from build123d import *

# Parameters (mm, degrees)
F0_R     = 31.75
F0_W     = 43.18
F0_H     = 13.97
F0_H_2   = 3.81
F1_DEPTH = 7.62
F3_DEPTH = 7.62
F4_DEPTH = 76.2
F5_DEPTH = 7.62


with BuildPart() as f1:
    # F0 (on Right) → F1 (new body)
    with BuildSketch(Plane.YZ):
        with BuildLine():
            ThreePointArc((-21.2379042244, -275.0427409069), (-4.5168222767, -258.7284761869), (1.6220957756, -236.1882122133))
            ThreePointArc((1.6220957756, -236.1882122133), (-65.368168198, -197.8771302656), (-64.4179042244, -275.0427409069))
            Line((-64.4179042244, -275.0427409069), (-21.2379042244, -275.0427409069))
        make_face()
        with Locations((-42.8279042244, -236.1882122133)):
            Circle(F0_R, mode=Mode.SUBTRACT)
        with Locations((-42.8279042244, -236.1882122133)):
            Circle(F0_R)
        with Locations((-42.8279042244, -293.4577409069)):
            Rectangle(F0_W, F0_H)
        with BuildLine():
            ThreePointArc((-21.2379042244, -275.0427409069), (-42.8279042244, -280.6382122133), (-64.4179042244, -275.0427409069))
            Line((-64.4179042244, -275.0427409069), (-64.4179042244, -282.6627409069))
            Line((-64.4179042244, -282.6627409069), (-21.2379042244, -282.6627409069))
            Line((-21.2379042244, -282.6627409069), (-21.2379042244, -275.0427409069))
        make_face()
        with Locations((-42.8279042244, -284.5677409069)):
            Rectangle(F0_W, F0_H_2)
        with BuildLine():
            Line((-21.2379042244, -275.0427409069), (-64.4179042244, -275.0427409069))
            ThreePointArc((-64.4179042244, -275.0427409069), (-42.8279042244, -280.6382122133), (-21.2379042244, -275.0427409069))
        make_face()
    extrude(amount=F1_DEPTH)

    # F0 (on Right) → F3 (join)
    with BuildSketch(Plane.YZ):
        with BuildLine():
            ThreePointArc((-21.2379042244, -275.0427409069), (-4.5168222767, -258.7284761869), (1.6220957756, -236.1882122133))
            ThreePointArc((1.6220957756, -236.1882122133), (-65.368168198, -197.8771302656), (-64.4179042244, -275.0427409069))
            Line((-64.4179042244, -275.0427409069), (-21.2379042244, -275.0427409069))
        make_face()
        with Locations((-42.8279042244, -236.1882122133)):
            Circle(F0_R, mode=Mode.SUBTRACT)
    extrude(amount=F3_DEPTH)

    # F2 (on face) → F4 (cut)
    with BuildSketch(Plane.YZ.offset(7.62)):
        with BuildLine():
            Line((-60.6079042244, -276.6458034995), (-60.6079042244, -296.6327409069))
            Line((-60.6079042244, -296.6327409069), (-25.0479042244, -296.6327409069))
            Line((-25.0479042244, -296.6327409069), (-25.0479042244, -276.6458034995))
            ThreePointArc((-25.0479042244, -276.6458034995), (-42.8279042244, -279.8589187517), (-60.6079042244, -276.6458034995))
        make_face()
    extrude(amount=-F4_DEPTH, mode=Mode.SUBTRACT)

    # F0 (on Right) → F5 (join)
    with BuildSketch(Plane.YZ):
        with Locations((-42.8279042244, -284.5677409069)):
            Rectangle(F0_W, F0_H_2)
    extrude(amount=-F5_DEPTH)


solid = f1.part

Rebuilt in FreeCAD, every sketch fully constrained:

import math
import FreeCAD as App
import Part
import Sketcher

V = App.Vector
Q = App.Units.Quantity

doc = App.newDocument("Part")
body = doc.addObject("PartDesign::Body", "Body")

# Sketch on YZ plane
sketch1 = body.newObject("Sketcher::SketchObject", "Sketch")
sketch1.AttachmentSupport = (doc.getObject("YZ_Plane"), [""])
sketch1.MapMode = "FlatFace"
sketch1.addGeometry(Part.ArcOfCircle(Part.Circle(V(-43, -236, 0), V(0, 0, 1), 44), math.radians(-61), math.radians(0)), False)
sketch1.addGeometry(Part.ArcOfCircle(Part.Circle(V(-43, -236, 0), V(0, 0, 1), 44), math.radians(0), math.radians(241)), False)
sketch1.addGeometry(Part.LineSegment(V(-64, -275, 0), V(-64, -300, 0)), False)
sketch1.addGeometry(Part.LineSegment(V(-64, -300, 0), V(-21, -300, 0)), False)
sketch1.addGeometry(Part.LineSegment(V(-21, -300, 0), V(-21, -275, 0)), False)
sketch1.addConstraint(Sketcher.Constraint("Tangent", 0, 2, 1, 1))
sketch1.addConstraint(Sketcher.Constraint("Coincident", 1, 2, 2, 1))
sketch1.addConstraint(Sketcher.Constraint("Coincident", 2, 2, 3, 1))
sketch1.addConstraint(Sketcher.Constraint("Coincident", 3, 2, 4, 1))
sketch1.addConstraint(Sketcher.Constraint("Coincident", 4, 2, 0, 1))
sketch1.addConstraint(Sketcher.Constraint("Vertical", 2))
sketch1.addConstraint(Sketcher.Constraint("Horizontal", 3))
sketch1.addConstraint(Sketcher.Constraint("Vertical", 4))
sketch1.addConstraint(Sketcher.Constraint("Equal", 0, 1))
sketch1.addConstraint(Sketcher.Constraint("Horizontal", 1, 3, 0, 2))
sketch1.addConstraint(Sketcher.Constraint("Horizontal", 1, 2, 4, 2))
sketch1.addConstraint(Sketcher.Constraint("DistanceY", 2, 2, 2, 1, Q("1 in")))
sketch1.addConstraint(Sketcher.Constraint("Radius", 0, Q("1.75 in")))
sketch1.addConstraint(Sketcher.Constraint("DistanceX", 3, 1, 3, 2, Q("1.7 in")))
sketch1.addConstraint(Sketcher.Constraint("DistanceY", 1, 2, -1, 1, 275.042741))
sketch1.addConstraint(Sketcher.Constraint("DistanceX", 0, 3, -1, 1, 42.827904))
pad1 = body.newObject("PartDesign::Pad", "Pad")
pad1.Profile = sketch1
pad1.Length = Q("0.3 in")

# Sketch on YZ plane
sketch2 = body.newObject("Sketcher::SketchObject", "Sketch001")
sketch2.AttachmentSupport = (doc.getObject("YZ_Plane"), [""])
sketch2.MapMode = "FlatFace"
sketch2.addGeometry(Part.ArcOfCircle(Part.Circle(V(-43, -236, 0), V(0, 0, 1), 44), math.radians(-61), math.radians(0)), False)
sketch2.addGeometry(Part.ArcOfCircle(Part.Circle(V(-43, -236, 0), V(0, 0, 1), 44), math.radians(0), math.radians(241)), False)
sketch2.addGeometry(Part.LineSegment(V(-64, -275, 0), V(-21, -275, 0)), False)
sketch2.addGeometry(Part.Circle(V(-43, -236, 0), V(0, 0, 1), 32), False)
sketch2.addConstraint(Sketcher.Constraint("Tangent", 0, 2, 1, 1))
sketch2.addConstraint(Sketcher.Constraint("Coincident", 1, 2, 2, 1))
sketch2.addConstraint(Sketcher.Constraint("Coincident", 2, 2, 0, 1))
sketch2.addConstraint(Sketcher.Constraint("Horizontal", 2))
sketch2.addConstraint(Sketcher.Constraint("Coincident", 3, 3, 0, 3))
sketch2.addConstraint(Sketcher.Constraint("Equal", 0, 1))
sketch2.addConstraint(Sketcher.Constraint("Horizontal", 3, 3, 0, 2))
sketch2.addConstraint(Sketcher.Constraint("Diameter", 3, Q("2.5 in")))
sketch2.addConstraint(Sketcher.Constraint("Radius", 0, Q("1.75 in")))
sketch2.addConstraint(Sketcher.Constraint("DistanceX", 2, 1, 2, 2, Q("1.7 in")))
sketch2.addConstraint(Sketcher.Constraint("DistanceY", 1, 2, -1, 1, 275.042741))
sketch2.addConstraint(Sketcher.Constraint("DistanceX", 0, 3, -1, 1, 42.827904))
pad2 = body.newObject("PartDesign::Pad", "Pad001")
pad2.Profile = sketch2
pad2.Length = Q("0.3 in")

# Sketch on YZ plane
sketch3 = body.newObject("Sketcher::SketchObject", "Sketch002")
sketch3.AttachmentSupport = (doc.getObject("YZ_Plane"), [""])
sketch3.MapMode = "FlatFace"
sketch3.AttachmentOffset = App.Placement(V(0, 0, 0.3 * 25.4), App.Rotation())
sketch3.addGeometry(Part.LineSegment(V(-61, -277, 0), V(-61, -297, 0)), False)
sketch3.addGeometry(Part.LineSegment(V(-61, -297, 0), V(-25, -297, 0)), False)
sketch3.addGeometry(Part.LineSegment(V(-25, -297, 0), V(-25, -277, 0)), False)
sketch3.addGeometry(Part.ArcOfCircle(Part.Circle(V(-43, -229, 0), V(0, 0, 1), 51), math.radians(-110), math.radians(-70)), False)
sketch3.addConstraint(Sketcher.Constraint("Coincident", 0, 2, 1, 1))
sketch3.addConstraint(Sketcher.Constraint("Coincident", 1, 2, 2, 1))
sketch3.addConstraint(Sketcher.Constraint("Coincident", 2, 2, 3, 2))
sketch3.addConstraint(Sketcher.Constraint("Coincident", 3, 1, 0, 1))
sketch3.addConstraint(Sketcher.Constraint("Vertical", 0))
sketch3.addConstraint(Sketcher.Constraint("Horizontal", 1))
sketch3.addConstraint(Sketcher.Constraint("Vertical", 2))
sketch3.addConstraint(Sketcher.Constraint("Horizontal", 2, 2, 3, 1))
sketch3.addConstraint(Sketcher.Constraint("Radius", 3, Q("2 in")))
sketch3.addConstraint(Sketcher.Constraint("DistanceX", 1, 1, 1, 2, Q("1.4 in")))
sketch3.addConstraint(Sketcher.Constraint("DistanceY", 0, 2, 0, 1, 19.986937))
sketch3.addConstraint(Sketcher.Constraint("DistanceY", 3, 3, -1, 1, 229.058919))
sketch3.addConstraint(Sketcher.Constraint("DistanceX", 3, 3, -1, 1, 42.827904))
pocket1 = body.newObject("PartDesign::Pocket", "Pocket")
pocket1.Profile = sketch3
pocket1.Length = Q("3 in")

# Sketch on YZ plane
sketch4 = body.newObject("Sketcher::SketchObject", "Sketch003")
sketch4.AttachmentSupport = (doc.getObject("YZ_Plane"), [""])
sketch4.MapMode = "FlatFace"
sketch4.addGeometry(Part.LineSegment(V(-64.4, -282.7, 0), V(-64.4, -286.5, 0)), False)
sketch4.addGeometry(Part.LineSegment(V(-64.4, -286.5, 0), V(-21.2, -286.5, 0)), False)
sketch4.addGeometry(Part.LineSegment(V(-21.2, -286.5, 0), V(-21.2, -282.7, 0)), False)
sketch4.addGeometry(Part.LineSegment(V(-21.2, -282.7, 0), V(-64.4, -282.7, 0)), False)
sketch4.addConstraint(Sketcher.Constraint("Coincident", 0, 2, 1, 1))
sketch4.addConstraint(Sketcher.Constraint("Coincident", 1, 2, 2, 1))
sketch4.addConstraint(Sketcher.Constraint("Coincident", 2, 2, 3, 1))
sketch4.addConstraint(Sketcher.Constraint("Coincident", 3, 2, 0, 1))
sketch4.addConstraint(Sketcher.Constraint("Vertical", 0))
sketch4.addConstraint(Sketcher.Constraint("Horizontal", 1))
sketch4.addConstraint(Sketcher.Constraint("Vertical", 2))
sketch4.addConstraint(Sketcher.Constraint("Horizontal", 3))
sketch4.addConstraint(Sketcher.Constraint("DistanceX", 1, 1, 1, 2, Q("1.7 in")))
sketch4.addConstraint(Sketcher.Constraint("DistanceY", 0, 2, 0, 1, Q("0.15 in")))
sketch4.addConstraint(Sketcher.Constraint("DistanceY", 0, 2, -1, 1, 286.472741))
sketch4.addConstraint(Sketcher.Constraint("DistanceX", 0, 2, -1, 1, 64.417904))
pad3 = body.newObject("PartDesign::Pad", "Pad002")
pad3.Profile = sketch4
pad3.Length = Q("0.3 in")
pad3.Reversed = True

doc.recompute()
